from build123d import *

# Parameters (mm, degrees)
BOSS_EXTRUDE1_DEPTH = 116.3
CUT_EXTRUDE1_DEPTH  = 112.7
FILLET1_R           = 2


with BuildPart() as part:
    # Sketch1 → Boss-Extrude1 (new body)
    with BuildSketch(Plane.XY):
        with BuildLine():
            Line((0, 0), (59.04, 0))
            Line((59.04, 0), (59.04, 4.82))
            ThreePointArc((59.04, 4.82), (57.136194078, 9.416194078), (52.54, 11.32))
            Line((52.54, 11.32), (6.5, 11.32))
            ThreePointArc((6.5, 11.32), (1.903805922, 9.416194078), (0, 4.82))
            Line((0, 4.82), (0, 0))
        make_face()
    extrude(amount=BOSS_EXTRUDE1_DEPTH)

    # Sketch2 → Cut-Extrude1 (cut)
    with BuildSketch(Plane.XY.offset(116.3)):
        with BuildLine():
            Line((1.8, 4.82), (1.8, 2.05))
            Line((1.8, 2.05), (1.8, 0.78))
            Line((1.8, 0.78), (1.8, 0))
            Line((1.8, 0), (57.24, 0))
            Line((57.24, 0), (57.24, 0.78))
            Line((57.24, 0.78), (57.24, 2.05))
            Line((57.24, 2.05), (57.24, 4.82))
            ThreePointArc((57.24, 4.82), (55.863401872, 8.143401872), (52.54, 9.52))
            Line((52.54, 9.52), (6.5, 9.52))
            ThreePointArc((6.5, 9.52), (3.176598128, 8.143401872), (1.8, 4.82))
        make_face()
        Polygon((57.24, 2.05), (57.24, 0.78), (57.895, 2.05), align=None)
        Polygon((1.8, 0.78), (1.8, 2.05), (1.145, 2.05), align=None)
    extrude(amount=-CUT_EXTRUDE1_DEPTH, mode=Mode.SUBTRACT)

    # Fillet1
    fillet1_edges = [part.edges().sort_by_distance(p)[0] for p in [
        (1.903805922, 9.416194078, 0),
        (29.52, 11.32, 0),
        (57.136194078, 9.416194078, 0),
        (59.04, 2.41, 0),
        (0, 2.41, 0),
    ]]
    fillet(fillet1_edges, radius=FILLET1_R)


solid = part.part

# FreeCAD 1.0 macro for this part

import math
import FreeCAD as App
import Part
import Sketcher
from FreeCAD import Vector
Q = App.Units.Quantity


def edges_at(feature, points):
    """Names of the edges that pass closest to the given points."""
    edges = feature.Shape.Edges
    near = lambda p: min(range(len(edges)), key=lambda i: edges[i].distToShape(Part.Vertex(*p))[0])
    return sorted({f"Edge{near(p) + 1}" for p in points})

doc = App.newDocument("Part")
body = doc.addObject("PartDesign::Body", "Body")

sketch1 = doc.addObject("Sketcher::SketchObject", "Sketch")
body.addObject(sketch1)
sketch1.AttachmentSupport = (doc.XY_Plane, [""])
sketch1.MapMode = "FlatFace"
sketch1.addGeometry([
    Part.LineSegment(Vector(0, 0, 0), Vector(59.04, 0, 0)),
    Part.LineSegment(Vector(59.04, 0, 0), Vector(59.04, 4.82, 0)),
    Part.ArcOfCircle(Part.Circle(Vector(52.54, 4.82, 0), Vector(0, 0, 1), 6.5), math.radians(0), math.radians(90)),
    Part.LineSegment(Vector(52.54, 11.32, 0), Vector(6.5, 11.32, 0)),
    Part.ArcOfCircle(Part.Circle(Vector(6.5, 4.82, 0), Vector(0, 0, 1), 6.5), math.radians(90), math.radians(180)),
    Part.LineSegment(Vector(0, 4.82, 0), Vector(0, 0, 0)),
], False)
sketch1.addConstraint([
    Sketcher.Constraint("Coincident", 0, 2, 1, 1),
    Sketcher.Constraint("Tangent", 1, 2, 2, 1),
    Sketcher.Constraint("Tangent", 2, 2, 3, 1),
    Sketcher.Constraint("Tangent", 3, 2, 4, 1),
    Sketcher.Constraint("Tangent", 4, 2, 5, 1),
    Sketcher.Constraint("Coincident", 5, 2, 0, 1),
    Sketcher.Constraint("Horizontal", 0),
    Sketcher.Constraint("Vertical", 1),
    Sketcher.Constraint("Horizontal", 3),
    Sketcher.Constraint("Vertical", 5),
    Sketcher.Constraint("Coincident", 5, 2, -1, 1),
    Sketcher.Constraint("Equal", 2, 4),
    Sketcher.Constraint("Radius", 2, Q("6.5 mm")),
    Sketcher.Constraint("DistanceX", 0, 1, 0, 2, Q("59.04 mm")),
    Sketcher.Constraint("DistanceY", 1, 1, 1, 2, Q("4.82 mm")),
])
pad1 = doc.addObject("PartDesign::Pad", "Pad")
body.addObject(pad1)
pad1.Profile = sketch1
pad1.Length = 116.3

sketch2 = doc.addObject("Sketcher::SketchObject", "Sketch001")
body.addObject(sketch2)
sketch2.AttachmentSupport = (doc.XY_Plane, [""])
sketch2.MapMode = "FlatFace"
sketch2.AttachmentOffset = App.Placement(Vector(0, 0, 116.3), App.Rotation())
sketch2.addGeometry([
    Part.LineSegment(Vector(1.8, 4.82, 0), Vector(1.8, 2.05, 0)),
    Part.LineSegment(Vector(1.8, 2.05, 0), Vector(1.145, 2.05, 0)),
    Part.LineSegment(Vector(1.145, 2.05, 0), Vector(1.8, 0.78, 0)),
    Part.LineSegment(Vector(1.8, 0.78, 0), Vector(1.8, 0, 0)),
    Part.LineSegment(Vector(1.8, 0, 0), Vector(57.24, 0, 0)),
    Part.LineSegment(Vector(57.24, 0, 0), Vector(57.24, 0.78, 0)),
    Part.LineSegment(Vector(57.24, 0.78, 0), Vector(57.895, 2.05, 0)),
    Part.LineSegment(Vector(57.895, 2.05, 0), Vector(57.24, 2.05, 0)),
    Part.LineSegment(Vector(57.24, 2.05, 0), Vector(57.24, 4.82, 0)),
    Part.ArcOfCircle(Part.Circle(Vector(52.54, 4.82, 0), Vector(0, 0, 1), 4.7), math.radians(0), math.radians(90)),
    Part.LineSegment(Vector(52.54, 9.52, 0), Vector(6.5, 9.52, 0)),
    Part.ArcOfCircle(Part.Circle(Vector(6.5, 4.82, 0), Vector(0, 0, 1), 4.7), math.radians(90), math.radians(180)),
], False)
sketch2.addConstraint([
    Sketcher.Constraint("Coincident", 0, 2, 1, 1),
    Sketcher.Constraint("Coincident", 1, 2, 2, 1),
    Sketcher.Constraint("Coincident", 2, 2, 3, 1),
    Sketcher.Constraint("Coincident", 3, 2, 4, 1),
    Sketcher.Constraint("Coincident", 4, 2, 5, 1),
    Sketcher.Constraint("Coincident", 5, 2, 6, 1),
    Sketcher.Constraint("Coincident", 6, 2, 7, 1),
    Sketcher.Constraint("Coincident", 7, 2, 8, 1),
    Sketcher.Constraint("Tangent", 8, 2, 9, 1),
    Sketcher.Constraint("Tangent", 9, 2, 10, 1),
    Sketcher.Constraint("Tangent", 10, 2, 11, 1),
    Sketcher.Constraint("Tangent", 11, 2, 0, 1),
    Sketcher.Constraint("Vertical", 0),
    Sketcher.Constraint("Horizontal", 1),
    Sketcher.Constraint("Vertical", 3),
    Sketcher.Constraint("Horizontal", 4),
    Sketcher.Constraint("Vertical", 5),
    Sketcher.Constraint("Horizontal", 7),
    Sketcher.Constraint("Vertical", 8),
    Sketcher.Constraint("Horizontal", 10),
    Sketcher.Constraint("Equal", 9, 11),
    Sketcher.Constraint("PointOnObject", 3, 2, -1),
    Sketcher.Constraint("Horizontal", 2, 2, 5, 2),
    Sketcher.Constraint("Horizontal", 1, 2, 6, 2),
    Sketcher.Constraint("Vertical", 0, 2, 2, 2),
    Sketcher.Constraint("Vertical", 5, 2, 7, 2),
    Sketcher.Constraint("Equal", 1, 7),
    Sketcher.Constraint("Radius", 9, Q("4.7 mm")),
    Sketcher.Constraint("DistanceX", 4, 1, 4, 2, Q("55.44 mm")),
    Sketcher.Constraint("DistanceY", 0, 2, 0, 1, Q("2.77 mm")),
    Sketcher.Constraint("DistanceY", 3, 2, 3, 1, Q("0.78 mm")),
    Sketcher.Constraint("DistanceX", -1, 1, 11, 3, Q("6.5 mm")),
    Sketcher.Constraint("DistanceX", 1, 2, 1, 1, Q("0.655 mm")),
    Sketcher.Constraint("DistanceY", -1, 1, 9, 3, Q("4.82 mm")),
])
pocket1 = doc.addObject("PartDesign::Pocket", "Pocket")
body.addObject(pocket1)
pocket1.Profile = sketch2
pocket1.Length = 112.7
doc.recompute()

fillet = doc.addObject("PartDesign::Fillet", "Fillet")
body.addObject(fillet)
fillet.Base = (pocket1, edges_at(pocket1, [
    (1.904, 9.416, 0),
    (29.52, 11.32, 0),
    (57.136, 9.416, 0),
    (59.04, 2.41, 0),
    (0, 2.41, 0),
]))
fillet.Radius = 2

doc.recompute()
